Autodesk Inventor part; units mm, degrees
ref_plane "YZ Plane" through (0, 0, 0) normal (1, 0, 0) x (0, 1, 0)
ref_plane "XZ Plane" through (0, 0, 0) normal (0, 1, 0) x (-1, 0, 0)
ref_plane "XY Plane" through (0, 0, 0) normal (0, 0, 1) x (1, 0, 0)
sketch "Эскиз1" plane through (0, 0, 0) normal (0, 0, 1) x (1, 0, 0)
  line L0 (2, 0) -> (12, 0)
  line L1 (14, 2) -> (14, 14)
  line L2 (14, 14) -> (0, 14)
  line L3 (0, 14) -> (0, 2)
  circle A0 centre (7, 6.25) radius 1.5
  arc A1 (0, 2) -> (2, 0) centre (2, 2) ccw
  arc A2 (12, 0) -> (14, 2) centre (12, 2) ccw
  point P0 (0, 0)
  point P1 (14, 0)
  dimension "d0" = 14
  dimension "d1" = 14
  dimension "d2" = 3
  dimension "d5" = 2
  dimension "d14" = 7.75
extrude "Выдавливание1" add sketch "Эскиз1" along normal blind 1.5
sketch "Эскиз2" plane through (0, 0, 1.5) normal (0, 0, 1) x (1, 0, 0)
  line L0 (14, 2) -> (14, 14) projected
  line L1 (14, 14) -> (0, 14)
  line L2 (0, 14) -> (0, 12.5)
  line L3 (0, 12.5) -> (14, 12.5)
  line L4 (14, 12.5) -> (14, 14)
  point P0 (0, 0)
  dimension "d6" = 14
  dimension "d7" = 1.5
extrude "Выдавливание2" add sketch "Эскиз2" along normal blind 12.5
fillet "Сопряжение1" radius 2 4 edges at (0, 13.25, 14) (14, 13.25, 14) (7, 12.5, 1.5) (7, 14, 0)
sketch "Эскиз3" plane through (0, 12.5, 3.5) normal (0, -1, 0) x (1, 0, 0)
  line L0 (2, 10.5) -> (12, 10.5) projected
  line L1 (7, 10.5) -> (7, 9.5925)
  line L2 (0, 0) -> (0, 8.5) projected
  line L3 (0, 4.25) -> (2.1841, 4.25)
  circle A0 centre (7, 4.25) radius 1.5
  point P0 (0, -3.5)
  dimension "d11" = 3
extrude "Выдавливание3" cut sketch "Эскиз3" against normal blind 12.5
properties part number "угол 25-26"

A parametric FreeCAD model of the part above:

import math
import FreeCAD as App
import Part
import Sketcher


def edges_at(feature, points):
    """Names of the edges that pass closest to the given points."""
    edges = feature.Shape.Edges
    near = lambda p: min(range(len(edges)), key=lambda i: edges[i].distToShape(Part.Vertex(*p))[0])
    return sorted({f"Edge{near(p) + 1}" for p in points})

doc = App.newDocument("Part")
params = doc.addObject("Spreadsheet::Sheet", "Params")
for row, (alias, value) in enumerate([
    ("sketch1_diameter", "3 mm"),
    ("sketch1_radius", "2 mm"),
    ("sketch1_width", "14 mm"),
    ("pad1_length", "1.5 mm"),
    ("sketch2_width", "14 mm"),
    ("sketch2_height", "1.5 mm"),
    ("pad2_length", "12.5 mm"),
    ("fillet_radius", "2 mm"),
    ("sketch3_diameter", "3 mm"),
    ("pocket1_length", "12.5 mm"),
], start=1):
    params.set(f"A{row}", alias)
    params.set(f"B{row}", "=" + value)
    params.setAlias(f"B{row}", alias)

body = doc.addObject("PartDesign::Body", "Body")

sketch1 = doc.addObject("Sketcher::SketchObject", "Sketch")
body.addObject(sketch1)
sketch1.AttachmentSupport = (doc.XY_Plane, [""])
sketch1.MapMode = "FlatFace"
sketch1.addGeometry([
    Part.ArcOfCircle(Part.Circle(App.Vector(2, 2, 0), App.Vector(0, 0, 1), 2), math.radians(180), math.radians(270)),
    Part.LineSegment(App.Vector(2, 0, 0), App.Vector(12, 0, 0)),
    Part.ArcOfCircle(Part.Circle(App.Vector(12, 2, 0), App.Vector(0, 0, 1), 2), math.radians(-90), math.radians(0)),
    Part.LineSegment(App.Vector(14, 2, 0), App.Vector(14, 14, 0)),
    Part.LineSegment(App.Vector(14, 14, 0), App.Vector(0, 14, 0)),
    Part.LineSegment(App.Vector(0, 14, 0), App.Vector(0, 2, 0)),
    Part.Circle(App.Vector(7, 6.2, 0), App.Vector(0, 0, 1), 1.5),
], False)
sketch1.addConstraint([
    Sketcher.Constraint("Tangent", 0, 2, 1, 1),
    Sketcher.Constraint("Tangent", 1, 2, 2, 1),
    Sketcher.Constraint("Tangent", 2, 2, 3, 1),
    Sketcher.Constraint("Coincident", 3, 2, 4, 1),
    Sketcher.Constraint("Coincident", 4, 2, 5, 1),
    Sketcher.Constraint("Tangent", 5, 2, 0, 1),
    Sketcher.Constraint("Horizontal", 1),
    Sketcher.Constraint("Vertical", 3),
    Sketcher.Constraint("Horizontal", 4),
    Sketcher.Constraint("Vertical", 5),
    Sketcher.Constraint("Equal", 0, 2),
    Sketcher.Constraint("PointOnObject", 0, 2, -1),
    Sketcher.Constraint("PointOnObject", 4, 2, -2),
    Sketcher.Constraint("Diameter", 6, 3.0),
    Sketcher.Constraint("Radius", 0, 2.0),
    Sketcher.Constraint("DistanceX", 4, 2, 4, 1, 14.0),
    Sketcher.Constraint("DistanceY", -1, 1, 3, 2, 14.0),
    Sketcher.Constraint("DistanceY", 6, 3, 3, 2, 7.75),
    Sketcher.Constraint("DistanceX", -1, 1, 6, 3, 7.0),
])
sketch1.setExpression("Constraints[13]", "Params.sketch1_diameter")
sketch1.setExpression("Constraints[14]", "Params.sketch1_radius")
sketch1.setExpression("Constraints[15]", "Params.sketch1_width")
pad1 = doc.addObject("PartDesign::Pad", "Pad")
body.addObject(pad1)
pad1.Profile = sketch1
pad1.setExpression("Length", "Params.pad1_length")

sketch2 = doc.addObject("Sketcher::SketchObject", "Sketch001")
body.addObject(sketch2)
sketch2.AttachmentSupport = (doc.XY_Plane, [""])
sketch2.MapMode = "FlatFace"
sketch2.AttachmentOffset = App.Placement(App.Vector(0, 0, 1.5), App.Rotation())
sketch2.addGeometry([
    Part.LineSegment(App.Vector(0, 12.5, 0), App.Vector(14, 12.5, 0)),
    Part.LineSegment(App.Vector(14, 12.5, 0), App.Vector(14, 14, 0)),
    Part.LineSegment(App.Vector(14, 14, 0), App.Vector(0, 14, 0)),
    Part.LineSegment(App.Vector(0, 14, 0), App.Vector(0, 12.5, 0)),
], False)
sketch2.addConstraint([
    Sketcher.Constraint("Coincident", 0, 2, 1, 1),
    Sketcher.Constraint("Coincident", 1, 2, 2, 1),
    Sketcher.Constraint("Coincident", 2, 2, 3, 1),
    Sketcher.Constraint("Coincident", 3, 2, 0, 1),
    Sketcher.Constraint("Horizontal", 0),
    Sketcher.Constraint("Vertical", 1),
    Sketcher.Constraint("Horizontal", 2),
    Sketcher.Constraint("Vertical", 3),
    Sketcher.Constraint("PointOnObject", 2, 2, -2),
    Sketcher.Constraint("DistanceX", 0, 1, 0, 2, 14.0),
    Sketcher.Constraint("DistanceY", 1, 1, 1, 2, 1.5),
    Sketcher.Constraint("DistanceY", -1, 1, 1, 2, 14.0),
])
sketch2.setExpression("Constraints[9]", "Params.sketch2_width")
sketch2.setExpression("Constraints[10]", "Params.sketch2_height")
pad2 = doc.addObject("PartDesign::Pad", "Pad001")
body.addObject(pad2)
pad2.Profile = sketch2
pad2.setExpression("Length", "Params.pad2_length")
doc.recompute()

fillet = doc.addObject("PartDesign::Fillet", "Fillet")
body.addObject(fillet)
fillet.Base = (pad2, edges_at(pad2, [
    (0, 13.25, 14),
    (14, 13.25, 14),
    (7, 12.5, 1.5),
    (7, 14, 0),
]))
fillet.setExpression("Radius", "Params.fillet_radius")

sketch3 = doc.addObject("Sketcher::SketchObject", "Sketch002")
body.addObject(sketch3)
sketch3.AttachmentSupport = (doc.XZ_Plane, [""])
sketch3.MapMode = "FlatFace"
sketch3.AttachmentOffset = App.Placement(App.Vector(0, 0, -12.5), App.Rotation())
sketch3.addGeometry(Part.Circle(App.Vector(7, 7.8, 0), App.Vector(0, 0, 1), 1.5), False)
sketch3.addConstraint([
    Sketcher.Constraint("Diameter", 0, 3.0),
    Sketcher.Constraint("DistanceX", -1, 1, 0, 3, 7.0),
    Sketcher.Constraint("DistanceY", -1, 1, 0, 3, 7.75),
])
sketch3.setExpression("Constraints[0]", "Params.sketch3_diameter")
pocket1 = doc.addObject("PartDesign::Pocket", "Pocket")
body.addObject(pocket1)
pocket1.Profile = sketch3
pocket1.setExpression("Length", "Params.pocket1_length")

doc.recompute()
